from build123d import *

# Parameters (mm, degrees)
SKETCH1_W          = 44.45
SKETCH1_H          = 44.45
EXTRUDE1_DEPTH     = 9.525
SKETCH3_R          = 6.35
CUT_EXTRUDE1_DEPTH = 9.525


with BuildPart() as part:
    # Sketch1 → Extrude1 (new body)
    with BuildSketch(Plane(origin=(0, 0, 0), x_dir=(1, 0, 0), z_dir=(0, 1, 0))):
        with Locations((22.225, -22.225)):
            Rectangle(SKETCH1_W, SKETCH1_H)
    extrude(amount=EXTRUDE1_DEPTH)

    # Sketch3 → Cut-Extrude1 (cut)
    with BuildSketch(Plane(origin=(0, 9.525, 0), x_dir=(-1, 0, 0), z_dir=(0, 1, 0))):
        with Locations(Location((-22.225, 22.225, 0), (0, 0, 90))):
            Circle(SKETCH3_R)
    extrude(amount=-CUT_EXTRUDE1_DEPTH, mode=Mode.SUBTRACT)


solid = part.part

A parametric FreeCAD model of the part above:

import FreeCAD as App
import Part
import Sketcher
from FreeCAD import Vector
Q = App.Units.Quantity


def add_polygon(sketch, points):
    """Adds a closed chain of lines whose ends are joined by coincident constraints."""
    first, n = sketch.GeometryCount, len(points)
    for a, b in zip(points, points[1:] + points[:1]):
        sketch.addGeometry(Part.LineSegment(App.Vector(*a, 0), App.Vector(*b, 0)), False)
    for i in range(n):
        sketch.addConstraint(Sketcher.Constraint("Coincident", first + i, 2, first + (i + 1) % n, 1))

doc = App.newDocument("Part")
body = doc.addObject("PartDesign::Body", "Body")

# Sketch on XZ plane
sketch1 = body.newObject("Sketcher::SketchObject", "Sketch")
sketch1.AttachmentSupport = (doc.getObject("XZ_Plane"), [""])
sketch1.MapMode = "FlatFace"
add_polygon(sketch1, [(0, 0), (0, 44), (44, 44), (44, 0)])  # lines 0-3
sketch1.addConstraint([
    Sketcher.Constraint("Vertical", 0),
    Sketcher.Constraint("Horizontal", 1),
    Sketcher.Constraint("Vertical", 2),
    Sketcher.Constraint("Horizontal", 3),
    Sketcher.Constraint("Coincident", 3, 2, -1, 1),
    Sketcher.Constraint("Equal", 3, 0),
    Sketcher.Constraint("DistanceX", 1, 1, 1, 2, Q("1.75 in")),
])
pad1 = body.newObject("PartDesign::Pad", "Pad")
pad1.Profile = sketch1
pad1.Length = Q("0.375 in")
pad1.Reversed = True

# Sketch on XZ plane
sketch2 = body.newObject("Sketcher::SketchObject", "Sketch001")
sketch2.AttachmentSupport = (doc.getObject("XZ_Plane"), [""])
sketch2.MapMode = "FlatFace"
sketch2.AttachmentOffset = App.Placement(Vector(0, 0, -0.375 * 25.4), App.Rotation())
sketch2.addGeometry(Part.Circle(Vector(22, 22, 0), Vector(0, 0, 1), 6), False)
sketch2.addConstraint([
    Sketcher.Constraint("Diameter", 0, Q("0.5 in")),
    Sketcher.Constraint("DistanceX", -1, 1, 0, 3, Q("0.875 in")),
    Sketcher.Constraint("DistanceY", -1, 1, 0, 3, Q("0.875 in")),
])
pocket1 = body.newObject("PartDesign::Pocket", "Pocket")
pocket1.Profile = sketch2
pocket1.Length = Q("0.375 in")
pocket1.Reversed = True

doc.recompute()
